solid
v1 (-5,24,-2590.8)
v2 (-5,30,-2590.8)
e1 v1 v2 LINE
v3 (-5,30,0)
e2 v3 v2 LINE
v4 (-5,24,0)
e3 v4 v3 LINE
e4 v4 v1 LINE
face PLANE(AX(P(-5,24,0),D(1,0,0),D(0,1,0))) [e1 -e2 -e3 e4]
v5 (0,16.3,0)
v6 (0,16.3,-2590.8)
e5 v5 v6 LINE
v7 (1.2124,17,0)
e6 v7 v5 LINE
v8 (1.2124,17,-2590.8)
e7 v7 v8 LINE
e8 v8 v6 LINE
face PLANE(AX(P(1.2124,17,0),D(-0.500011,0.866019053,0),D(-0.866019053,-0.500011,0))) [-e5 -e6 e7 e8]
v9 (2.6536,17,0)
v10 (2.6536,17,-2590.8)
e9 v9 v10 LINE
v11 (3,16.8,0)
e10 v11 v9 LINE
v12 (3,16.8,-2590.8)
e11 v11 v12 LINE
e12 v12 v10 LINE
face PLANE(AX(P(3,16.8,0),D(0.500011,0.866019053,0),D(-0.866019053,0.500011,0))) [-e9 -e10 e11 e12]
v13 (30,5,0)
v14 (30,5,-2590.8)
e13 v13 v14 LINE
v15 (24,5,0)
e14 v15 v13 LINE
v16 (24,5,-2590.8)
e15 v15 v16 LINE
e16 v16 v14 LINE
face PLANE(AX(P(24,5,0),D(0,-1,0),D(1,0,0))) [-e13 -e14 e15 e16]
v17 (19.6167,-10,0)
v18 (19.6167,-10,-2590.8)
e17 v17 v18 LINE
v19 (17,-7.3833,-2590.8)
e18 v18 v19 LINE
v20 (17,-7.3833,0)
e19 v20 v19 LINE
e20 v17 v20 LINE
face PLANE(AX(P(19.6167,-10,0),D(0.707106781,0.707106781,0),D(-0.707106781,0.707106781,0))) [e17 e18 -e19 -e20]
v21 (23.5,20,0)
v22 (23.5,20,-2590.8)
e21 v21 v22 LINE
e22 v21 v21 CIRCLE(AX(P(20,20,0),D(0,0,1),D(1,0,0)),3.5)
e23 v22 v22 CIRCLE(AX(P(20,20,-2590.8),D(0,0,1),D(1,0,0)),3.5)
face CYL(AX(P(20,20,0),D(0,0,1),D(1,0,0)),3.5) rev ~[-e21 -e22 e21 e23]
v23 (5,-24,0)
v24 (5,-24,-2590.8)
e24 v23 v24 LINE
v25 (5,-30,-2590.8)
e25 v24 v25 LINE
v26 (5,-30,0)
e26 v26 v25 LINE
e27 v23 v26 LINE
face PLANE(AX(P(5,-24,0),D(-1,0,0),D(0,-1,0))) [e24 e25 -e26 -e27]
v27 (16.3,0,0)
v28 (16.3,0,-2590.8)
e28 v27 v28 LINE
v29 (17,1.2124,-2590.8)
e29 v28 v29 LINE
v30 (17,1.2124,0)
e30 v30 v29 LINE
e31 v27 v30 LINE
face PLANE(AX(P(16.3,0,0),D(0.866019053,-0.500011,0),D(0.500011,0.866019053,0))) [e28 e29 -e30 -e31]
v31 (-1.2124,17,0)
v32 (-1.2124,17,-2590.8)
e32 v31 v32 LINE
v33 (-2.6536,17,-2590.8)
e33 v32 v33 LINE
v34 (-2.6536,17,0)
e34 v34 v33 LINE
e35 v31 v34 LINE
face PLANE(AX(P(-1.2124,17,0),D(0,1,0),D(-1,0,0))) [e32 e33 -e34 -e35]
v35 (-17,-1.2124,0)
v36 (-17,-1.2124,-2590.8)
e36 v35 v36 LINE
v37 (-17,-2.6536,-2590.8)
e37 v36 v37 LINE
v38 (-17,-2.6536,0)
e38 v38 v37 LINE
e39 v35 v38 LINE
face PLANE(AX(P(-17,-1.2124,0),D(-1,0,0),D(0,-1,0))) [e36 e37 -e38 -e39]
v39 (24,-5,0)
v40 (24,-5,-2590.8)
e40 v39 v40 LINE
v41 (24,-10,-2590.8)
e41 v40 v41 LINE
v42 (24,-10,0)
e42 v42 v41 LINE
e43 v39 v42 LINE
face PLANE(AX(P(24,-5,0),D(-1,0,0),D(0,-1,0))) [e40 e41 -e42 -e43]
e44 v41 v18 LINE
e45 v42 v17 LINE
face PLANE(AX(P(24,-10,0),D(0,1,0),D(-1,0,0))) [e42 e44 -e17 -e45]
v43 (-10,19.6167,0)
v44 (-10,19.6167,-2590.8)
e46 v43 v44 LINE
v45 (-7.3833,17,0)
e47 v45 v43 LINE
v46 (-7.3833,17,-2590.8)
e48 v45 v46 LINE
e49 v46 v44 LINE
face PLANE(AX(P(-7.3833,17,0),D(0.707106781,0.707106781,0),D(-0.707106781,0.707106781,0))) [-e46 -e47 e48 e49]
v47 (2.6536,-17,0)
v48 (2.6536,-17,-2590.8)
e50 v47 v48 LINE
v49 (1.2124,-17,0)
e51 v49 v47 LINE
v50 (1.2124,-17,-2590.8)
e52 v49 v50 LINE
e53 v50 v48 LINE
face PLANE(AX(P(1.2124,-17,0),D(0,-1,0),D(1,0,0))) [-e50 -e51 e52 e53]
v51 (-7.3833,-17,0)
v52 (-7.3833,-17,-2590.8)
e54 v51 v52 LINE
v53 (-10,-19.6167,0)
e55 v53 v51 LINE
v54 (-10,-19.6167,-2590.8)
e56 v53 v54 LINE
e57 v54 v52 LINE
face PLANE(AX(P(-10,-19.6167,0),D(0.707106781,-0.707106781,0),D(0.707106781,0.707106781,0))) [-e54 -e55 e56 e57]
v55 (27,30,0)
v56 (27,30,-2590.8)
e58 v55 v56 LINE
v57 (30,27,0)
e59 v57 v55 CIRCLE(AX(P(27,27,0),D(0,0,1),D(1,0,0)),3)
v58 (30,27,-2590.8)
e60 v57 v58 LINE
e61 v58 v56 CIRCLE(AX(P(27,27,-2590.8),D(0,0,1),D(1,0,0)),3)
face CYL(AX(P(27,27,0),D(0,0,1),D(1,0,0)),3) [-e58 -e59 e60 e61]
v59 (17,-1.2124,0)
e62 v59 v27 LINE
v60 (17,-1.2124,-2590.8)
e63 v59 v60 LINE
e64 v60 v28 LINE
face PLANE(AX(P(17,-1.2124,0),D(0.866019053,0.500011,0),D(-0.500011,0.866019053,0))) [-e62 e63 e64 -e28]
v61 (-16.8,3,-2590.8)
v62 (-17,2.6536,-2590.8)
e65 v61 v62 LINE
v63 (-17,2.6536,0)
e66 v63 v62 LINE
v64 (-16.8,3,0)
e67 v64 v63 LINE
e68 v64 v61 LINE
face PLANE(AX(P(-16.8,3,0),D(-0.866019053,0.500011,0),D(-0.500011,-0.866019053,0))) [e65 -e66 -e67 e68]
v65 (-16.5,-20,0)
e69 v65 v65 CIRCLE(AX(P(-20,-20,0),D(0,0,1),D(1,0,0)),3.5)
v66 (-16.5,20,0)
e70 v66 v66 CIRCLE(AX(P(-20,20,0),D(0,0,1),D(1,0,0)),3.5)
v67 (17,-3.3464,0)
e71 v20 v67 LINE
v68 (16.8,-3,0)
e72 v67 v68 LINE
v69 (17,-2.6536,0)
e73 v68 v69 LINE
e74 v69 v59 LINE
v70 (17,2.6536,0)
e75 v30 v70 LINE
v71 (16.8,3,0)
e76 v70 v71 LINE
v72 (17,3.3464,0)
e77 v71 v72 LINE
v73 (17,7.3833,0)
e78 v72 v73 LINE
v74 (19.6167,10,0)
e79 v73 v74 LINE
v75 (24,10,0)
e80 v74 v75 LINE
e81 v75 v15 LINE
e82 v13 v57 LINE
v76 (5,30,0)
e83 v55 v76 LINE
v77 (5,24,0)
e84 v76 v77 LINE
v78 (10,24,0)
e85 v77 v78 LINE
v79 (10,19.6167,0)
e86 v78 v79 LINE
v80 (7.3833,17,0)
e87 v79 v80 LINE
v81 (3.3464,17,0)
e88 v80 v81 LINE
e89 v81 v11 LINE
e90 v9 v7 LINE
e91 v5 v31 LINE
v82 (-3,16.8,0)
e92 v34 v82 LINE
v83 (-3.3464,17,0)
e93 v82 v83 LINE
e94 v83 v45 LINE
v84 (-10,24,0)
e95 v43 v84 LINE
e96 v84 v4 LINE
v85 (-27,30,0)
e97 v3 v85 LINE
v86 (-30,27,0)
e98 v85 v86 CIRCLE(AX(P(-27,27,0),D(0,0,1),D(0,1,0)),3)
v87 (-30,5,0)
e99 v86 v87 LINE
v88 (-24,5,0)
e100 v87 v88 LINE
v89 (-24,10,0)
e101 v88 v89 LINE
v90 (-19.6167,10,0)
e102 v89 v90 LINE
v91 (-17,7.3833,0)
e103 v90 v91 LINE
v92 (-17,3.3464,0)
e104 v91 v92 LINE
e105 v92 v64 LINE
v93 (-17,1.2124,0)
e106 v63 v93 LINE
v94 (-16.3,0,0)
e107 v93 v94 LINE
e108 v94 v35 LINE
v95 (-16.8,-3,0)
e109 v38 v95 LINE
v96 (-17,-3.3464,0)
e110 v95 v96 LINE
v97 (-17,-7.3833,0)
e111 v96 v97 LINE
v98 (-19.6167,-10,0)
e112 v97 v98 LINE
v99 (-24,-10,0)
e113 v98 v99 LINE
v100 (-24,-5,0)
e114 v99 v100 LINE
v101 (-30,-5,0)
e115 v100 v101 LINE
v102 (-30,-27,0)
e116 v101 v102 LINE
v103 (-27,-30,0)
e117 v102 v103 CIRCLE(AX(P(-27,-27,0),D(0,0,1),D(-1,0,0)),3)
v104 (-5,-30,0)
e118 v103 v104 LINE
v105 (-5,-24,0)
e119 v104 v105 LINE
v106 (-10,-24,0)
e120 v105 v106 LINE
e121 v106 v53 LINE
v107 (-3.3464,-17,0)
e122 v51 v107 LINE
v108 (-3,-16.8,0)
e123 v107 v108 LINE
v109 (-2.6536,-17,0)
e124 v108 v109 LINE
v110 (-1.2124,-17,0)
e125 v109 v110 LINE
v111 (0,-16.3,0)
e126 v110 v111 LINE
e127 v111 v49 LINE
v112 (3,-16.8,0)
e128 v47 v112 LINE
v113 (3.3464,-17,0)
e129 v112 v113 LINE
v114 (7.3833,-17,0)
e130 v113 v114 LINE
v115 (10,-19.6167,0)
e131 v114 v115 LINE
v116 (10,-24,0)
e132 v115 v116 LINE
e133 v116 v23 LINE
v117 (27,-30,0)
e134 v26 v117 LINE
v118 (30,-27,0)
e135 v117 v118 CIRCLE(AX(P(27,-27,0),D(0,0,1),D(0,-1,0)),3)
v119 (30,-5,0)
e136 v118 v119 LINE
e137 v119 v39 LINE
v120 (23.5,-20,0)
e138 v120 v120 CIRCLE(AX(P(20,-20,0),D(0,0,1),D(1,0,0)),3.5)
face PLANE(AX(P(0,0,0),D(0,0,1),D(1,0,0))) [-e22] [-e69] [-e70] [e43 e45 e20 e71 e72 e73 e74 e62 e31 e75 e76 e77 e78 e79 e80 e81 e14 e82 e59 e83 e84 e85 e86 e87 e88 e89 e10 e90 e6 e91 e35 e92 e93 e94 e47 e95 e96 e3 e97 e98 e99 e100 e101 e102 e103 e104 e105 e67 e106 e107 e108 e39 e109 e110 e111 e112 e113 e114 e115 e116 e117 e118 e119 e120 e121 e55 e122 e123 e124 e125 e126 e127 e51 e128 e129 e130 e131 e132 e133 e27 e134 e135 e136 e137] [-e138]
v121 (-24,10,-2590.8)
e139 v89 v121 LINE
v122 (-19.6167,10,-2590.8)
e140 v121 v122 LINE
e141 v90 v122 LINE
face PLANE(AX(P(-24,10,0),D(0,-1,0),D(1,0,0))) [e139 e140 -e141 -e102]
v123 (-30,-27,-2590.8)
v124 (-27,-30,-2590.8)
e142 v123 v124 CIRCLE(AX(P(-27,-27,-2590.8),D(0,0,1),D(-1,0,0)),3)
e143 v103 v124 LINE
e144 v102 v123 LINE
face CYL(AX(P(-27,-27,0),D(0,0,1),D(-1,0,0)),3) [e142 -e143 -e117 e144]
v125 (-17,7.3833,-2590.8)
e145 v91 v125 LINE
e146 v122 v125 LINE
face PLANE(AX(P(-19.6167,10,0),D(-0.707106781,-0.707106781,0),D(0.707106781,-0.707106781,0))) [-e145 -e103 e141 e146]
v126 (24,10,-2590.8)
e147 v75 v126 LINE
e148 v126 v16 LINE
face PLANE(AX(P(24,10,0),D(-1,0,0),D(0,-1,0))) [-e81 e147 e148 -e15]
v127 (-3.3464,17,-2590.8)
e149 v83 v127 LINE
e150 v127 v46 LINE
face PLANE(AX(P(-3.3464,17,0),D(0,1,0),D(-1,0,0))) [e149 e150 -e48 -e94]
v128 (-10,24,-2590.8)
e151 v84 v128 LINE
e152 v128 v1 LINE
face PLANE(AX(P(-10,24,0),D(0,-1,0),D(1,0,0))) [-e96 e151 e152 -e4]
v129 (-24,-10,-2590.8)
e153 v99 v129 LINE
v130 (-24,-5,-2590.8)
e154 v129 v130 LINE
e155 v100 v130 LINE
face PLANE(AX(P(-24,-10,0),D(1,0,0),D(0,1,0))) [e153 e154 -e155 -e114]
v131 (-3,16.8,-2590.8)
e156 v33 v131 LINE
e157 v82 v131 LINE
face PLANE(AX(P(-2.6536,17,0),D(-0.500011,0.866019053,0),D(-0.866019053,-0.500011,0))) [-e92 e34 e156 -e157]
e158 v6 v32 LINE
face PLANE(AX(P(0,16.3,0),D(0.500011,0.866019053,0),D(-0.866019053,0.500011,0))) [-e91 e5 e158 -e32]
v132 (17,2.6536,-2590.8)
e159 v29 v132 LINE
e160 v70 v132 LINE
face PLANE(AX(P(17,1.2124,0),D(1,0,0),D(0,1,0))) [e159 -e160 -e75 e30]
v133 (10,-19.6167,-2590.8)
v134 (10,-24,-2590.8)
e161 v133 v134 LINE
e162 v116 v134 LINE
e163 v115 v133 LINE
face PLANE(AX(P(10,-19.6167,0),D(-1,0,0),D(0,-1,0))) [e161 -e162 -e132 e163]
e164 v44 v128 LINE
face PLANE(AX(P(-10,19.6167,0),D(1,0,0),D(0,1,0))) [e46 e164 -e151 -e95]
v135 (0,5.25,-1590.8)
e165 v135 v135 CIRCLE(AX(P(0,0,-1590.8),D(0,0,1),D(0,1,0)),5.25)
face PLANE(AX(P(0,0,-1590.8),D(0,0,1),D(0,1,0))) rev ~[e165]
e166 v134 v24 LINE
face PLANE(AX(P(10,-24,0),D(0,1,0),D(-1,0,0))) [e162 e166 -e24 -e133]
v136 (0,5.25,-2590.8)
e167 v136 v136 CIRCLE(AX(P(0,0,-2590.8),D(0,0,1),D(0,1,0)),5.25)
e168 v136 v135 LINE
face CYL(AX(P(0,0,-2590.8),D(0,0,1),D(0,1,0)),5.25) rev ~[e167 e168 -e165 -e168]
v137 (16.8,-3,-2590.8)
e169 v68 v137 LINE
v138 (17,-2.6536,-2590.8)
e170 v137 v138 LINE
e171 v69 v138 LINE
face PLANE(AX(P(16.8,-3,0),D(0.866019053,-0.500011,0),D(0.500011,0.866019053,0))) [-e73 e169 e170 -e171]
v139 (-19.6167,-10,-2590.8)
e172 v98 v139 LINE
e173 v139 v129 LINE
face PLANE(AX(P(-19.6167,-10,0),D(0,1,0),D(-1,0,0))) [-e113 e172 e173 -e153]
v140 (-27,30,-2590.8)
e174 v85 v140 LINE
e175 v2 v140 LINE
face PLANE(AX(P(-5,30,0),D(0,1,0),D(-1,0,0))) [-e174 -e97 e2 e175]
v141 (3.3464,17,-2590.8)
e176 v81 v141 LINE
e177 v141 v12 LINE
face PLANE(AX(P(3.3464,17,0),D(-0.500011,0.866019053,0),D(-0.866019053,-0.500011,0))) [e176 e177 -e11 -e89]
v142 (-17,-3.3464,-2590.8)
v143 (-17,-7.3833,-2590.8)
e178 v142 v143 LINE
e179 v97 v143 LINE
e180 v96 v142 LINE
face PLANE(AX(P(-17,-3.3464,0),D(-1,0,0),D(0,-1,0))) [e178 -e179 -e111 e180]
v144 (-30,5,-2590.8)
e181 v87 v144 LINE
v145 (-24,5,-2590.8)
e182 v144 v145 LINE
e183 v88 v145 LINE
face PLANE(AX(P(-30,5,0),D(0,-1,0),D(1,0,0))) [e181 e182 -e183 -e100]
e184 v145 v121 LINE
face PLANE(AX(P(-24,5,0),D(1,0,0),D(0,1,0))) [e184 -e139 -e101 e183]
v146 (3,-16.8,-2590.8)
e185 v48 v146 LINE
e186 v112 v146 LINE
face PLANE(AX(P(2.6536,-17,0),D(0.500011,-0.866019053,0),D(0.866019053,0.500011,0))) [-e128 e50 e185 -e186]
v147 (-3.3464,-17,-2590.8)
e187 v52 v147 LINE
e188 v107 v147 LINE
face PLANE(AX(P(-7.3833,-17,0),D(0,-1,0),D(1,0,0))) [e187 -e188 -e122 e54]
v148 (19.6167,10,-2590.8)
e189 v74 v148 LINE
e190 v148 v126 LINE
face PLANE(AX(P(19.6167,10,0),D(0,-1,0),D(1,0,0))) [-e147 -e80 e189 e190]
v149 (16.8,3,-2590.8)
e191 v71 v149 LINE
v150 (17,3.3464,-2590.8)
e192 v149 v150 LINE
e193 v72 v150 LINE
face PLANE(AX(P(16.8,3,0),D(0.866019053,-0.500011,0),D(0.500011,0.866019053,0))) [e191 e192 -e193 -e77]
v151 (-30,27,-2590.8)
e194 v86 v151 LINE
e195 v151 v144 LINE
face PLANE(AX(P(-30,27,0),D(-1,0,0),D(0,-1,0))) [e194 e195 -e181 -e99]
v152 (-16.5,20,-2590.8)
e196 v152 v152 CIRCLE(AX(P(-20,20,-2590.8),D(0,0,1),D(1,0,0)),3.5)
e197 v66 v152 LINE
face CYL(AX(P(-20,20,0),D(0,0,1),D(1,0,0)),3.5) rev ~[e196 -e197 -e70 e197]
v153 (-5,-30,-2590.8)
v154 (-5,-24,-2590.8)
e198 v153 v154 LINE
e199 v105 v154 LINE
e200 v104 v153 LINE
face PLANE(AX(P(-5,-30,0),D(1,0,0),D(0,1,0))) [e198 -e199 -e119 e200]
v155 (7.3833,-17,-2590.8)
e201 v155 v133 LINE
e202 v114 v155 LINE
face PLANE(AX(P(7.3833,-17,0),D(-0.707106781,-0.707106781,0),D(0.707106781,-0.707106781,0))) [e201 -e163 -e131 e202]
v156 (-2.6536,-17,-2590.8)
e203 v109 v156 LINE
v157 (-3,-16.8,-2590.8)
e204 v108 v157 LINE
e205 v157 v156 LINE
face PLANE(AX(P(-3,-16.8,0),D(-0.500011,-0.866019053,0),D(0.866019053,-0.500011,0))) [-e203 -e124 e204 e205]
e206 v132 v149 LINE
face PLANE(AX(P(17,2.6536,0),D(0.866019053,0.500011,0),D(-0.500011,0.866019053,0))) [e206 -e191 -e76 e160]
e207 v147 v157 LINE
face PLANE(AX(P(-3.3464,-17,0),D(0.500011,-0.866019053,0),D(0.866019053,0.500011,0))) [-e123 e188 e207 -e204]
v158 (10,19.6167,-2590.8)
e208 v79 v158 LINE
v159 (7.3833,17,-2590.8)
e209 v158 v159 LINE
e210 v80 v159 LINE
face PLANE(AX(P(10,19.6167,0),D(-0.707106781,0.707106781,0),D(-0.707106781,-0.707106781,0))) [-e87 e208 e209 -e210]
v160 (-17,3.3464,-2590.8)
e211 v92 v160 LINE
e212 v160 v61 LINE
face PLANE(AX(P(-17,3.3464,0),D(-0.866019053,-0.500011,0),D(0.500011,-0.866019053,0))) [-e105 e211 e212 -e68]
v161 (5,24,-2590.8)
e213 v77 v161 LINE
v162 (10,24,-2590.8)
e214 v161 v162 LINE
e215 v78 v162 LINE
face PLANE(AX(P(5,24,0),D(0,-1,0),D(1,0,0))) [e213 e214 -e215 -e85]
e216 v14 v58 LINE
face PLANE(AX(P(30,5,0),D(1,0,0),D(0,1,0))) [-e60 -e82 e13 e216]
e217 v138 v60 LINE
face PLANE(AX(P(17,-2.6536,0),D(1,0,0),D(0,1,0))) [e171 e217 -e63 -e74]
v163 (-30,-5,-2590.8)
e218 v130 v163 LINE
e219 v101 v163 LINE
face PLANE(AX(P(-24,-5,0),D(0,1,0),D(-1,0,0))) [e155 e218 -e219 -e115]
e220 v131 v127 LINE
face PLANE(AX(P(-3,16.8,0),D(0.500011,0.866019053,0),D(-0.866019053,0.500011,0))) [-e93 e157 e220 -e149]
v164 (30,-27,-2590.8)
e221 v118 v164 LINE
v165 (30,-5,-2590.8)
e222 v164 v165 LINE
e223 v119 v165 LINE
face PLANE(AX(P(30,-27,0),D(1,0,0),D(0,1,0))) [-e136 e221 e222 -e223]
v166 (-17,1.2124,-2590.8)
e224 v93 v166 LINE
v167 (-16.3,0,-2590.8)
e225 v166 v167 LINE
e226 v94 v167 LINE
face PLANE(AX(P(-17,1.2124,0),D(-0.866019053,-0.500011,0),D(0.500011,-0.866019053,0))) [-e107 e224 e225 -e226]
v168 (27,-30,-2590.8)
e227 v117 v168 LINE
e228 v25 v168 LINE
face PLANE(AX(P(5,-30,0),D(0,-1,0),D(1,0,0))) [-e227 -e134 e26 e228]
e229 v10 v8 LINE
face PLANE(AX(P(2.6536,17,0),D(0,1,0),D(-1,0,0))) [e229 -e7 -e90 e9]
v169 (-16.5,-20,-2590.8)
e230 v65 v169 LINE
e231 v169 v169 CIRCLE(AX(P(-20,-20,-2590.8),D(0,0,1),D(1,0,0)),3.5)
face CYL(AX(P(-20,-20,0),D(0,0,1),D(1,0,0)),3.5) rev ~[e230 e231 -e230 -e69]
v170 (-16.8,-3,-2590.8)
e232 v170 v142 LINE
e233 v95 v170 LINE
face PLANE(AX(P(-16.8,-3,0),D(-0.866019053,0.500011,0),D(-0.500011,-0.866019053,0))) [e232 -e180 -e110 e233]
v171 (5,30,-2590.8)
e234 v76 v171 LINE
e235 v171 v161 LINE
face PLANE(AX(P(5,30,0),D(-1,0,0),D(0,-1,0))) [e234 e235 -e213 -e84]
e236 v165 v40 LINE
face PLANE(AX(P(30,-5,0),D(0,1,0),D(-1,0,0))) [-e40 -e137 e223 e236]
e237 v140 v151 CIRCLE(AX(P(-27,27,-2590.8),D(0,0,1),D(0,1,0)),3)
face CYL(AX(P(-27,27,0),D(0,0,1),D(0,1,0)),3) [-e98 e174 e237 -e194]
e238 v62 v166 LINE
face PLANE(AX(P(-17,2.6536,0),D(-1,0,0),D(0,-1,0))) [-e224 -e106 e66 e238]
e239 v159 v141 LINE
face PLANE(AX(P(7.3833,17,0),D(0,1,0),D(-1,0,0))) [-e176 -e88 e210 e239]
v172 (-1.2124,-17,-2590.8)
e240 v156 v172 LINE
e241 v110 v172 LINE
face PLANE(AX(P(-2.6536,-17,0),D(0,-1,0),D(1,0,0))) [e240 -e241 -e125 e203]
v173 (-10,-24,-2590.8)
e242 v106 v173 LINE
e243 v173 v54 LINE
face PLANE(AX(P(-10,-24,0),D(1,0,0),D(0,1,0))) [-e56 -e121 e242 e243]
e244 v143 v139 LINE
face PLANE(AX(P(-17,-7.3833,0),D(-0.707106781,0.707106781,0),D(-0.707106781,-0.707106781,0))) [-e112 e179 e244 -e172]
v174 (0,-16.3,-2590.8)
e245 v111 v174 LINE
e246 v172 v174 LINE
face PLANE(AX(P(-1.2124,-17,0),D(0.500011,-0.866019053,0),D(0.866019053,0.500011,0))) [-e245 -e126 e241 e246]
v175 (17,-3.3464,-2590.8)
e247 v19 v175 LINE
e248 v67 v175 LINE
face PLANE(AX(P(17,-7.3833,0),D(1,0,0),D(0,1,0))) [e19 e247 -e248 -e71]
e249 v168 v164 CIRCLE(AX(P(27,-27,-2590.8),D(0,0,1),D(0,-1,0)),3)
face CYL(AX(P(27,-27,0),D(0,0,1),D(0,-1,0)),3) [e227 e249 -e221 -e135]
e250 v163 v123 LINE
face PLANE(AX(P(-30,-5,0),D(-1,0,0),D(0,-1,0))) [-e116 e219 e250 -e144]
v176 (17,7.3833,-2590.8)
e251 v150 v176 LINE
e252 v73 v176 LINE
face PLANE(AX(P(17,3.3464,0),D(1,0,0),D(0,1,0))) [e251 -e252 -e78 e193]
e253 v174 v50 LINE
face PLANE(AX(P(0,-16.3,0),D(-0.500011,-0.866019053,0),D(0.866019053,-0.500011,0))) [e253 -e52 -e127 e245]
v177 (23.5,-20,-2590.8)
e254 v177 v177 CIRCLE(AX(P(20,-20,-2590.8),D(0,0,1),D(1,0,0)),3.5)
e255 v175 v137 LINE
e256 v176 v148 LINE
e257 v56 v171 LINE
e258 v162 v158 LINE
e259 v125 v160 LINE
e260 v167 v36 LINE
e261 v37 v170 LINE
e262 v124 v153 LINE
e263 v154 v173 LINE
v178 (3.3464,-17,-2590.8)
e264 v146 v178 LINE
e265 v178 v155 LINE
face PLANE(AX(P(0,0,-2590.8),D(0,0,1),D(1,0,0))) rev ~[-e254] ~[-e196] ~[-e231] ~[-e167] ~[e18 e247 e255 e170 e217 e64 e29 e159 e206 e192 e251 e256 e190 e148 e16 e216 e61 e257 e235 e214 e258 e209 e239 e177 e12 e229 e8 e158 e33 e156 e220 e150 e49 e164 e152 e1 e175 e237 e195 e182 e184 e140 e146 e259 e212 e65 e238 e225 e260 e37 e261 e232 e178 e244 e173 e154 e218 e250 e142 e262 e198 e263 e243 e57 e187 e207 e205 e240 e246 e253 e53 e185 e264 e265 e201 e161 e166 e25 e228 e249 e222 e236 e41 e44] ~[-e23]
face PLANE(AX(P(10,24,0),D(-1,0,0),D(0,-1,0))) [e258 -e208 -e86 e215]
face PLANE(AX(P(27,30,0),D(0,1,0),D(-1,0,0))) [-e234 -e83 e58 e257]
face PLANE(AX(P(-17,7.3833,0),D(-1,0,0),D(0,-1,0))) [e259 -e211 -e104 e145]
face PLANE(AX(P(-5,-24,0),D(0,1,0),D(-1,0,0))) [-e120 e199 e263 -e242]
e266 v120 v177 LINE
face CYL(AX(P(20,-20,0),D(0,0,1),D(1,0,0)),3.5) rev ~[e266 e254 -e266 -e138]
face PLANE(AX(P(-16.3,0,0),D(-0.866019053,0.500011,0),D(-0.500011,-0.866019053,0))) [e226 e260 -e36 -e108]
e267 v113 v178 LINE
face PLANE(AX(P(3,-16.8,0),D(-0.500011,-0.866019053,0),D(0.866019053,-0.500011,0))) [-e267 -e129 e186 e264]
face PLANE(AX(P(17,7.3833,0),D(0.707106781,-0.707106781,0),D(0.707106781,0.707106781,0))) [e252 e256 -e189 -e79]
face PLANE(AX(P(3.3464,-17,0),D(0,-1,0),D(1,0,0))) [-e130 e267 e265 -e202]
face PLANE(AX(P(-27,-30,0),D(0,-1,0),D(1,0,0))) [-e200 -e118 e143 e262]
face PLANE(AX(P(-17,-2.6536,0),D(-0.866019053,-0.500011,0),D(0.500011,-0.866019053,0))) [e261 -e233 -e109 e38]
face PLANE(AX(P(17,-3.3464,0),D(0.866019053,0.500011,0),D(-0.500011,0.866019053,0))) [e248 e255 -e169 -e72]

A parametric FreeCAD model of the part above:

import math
import FreeCAD as App
import Part
import Sketcher
from FreeCAD import Vector
Q = App.Units.Quantity

doc = App.newDocument("Part")
body = doc.addObject("PartDesign::Body", "Body")

# Sketch on XY plane
sketch1 = body.newObject("Sketcher::SketchObject", "Sketch")
sketch1.AttachmentSupport = (doc.getObject("XY_Plane"), [""])
sketch1.MapMode = "FlatFace"
sketch1.addGeometry(Part.LineSegment(Vector(-30, -5, 0), Vector(-30, -27, 0)), False)
sketch1.addGeometry(Part.ArcOfCircle(Part.Circle(Vector(-27, -27, 0), Vector(0, 0, 1), 3), math.radians(180), math.radians(270)), False)
sketch1.addGeometry(Part.LineSegment(Vector(-27, -30, 0), Vector(-5, -30, 0)), False)
sketch1.addGeometry(Part.LineSegment(Vector(-5, -30, 0), Vector(-5, -24, 0)), False)
sketch1.addGeometry(Part.LineSegment(Vector(-5, -24, 0), Vector(-10, -24, 0)), False)
sketch1.addGeometry(Part.LineSegment(Vector(-10, -24, 0), Vector(-10, -19.6167, 0)), False)
sketch1.addGeometry(Part.LineSegment(Vector(-10, -19.6167, 0), Vector(-7.3833, -17, 0)), False)
sketch1.addGeometry(Part.LineSegment(Vector(-7.3833, -17, 0), Vector(-3.3464, -17, 0)), False)
sketch1.addGeometry(Part.LineSegment(Vector(-3.3464, -17, 0), Vector(-3, -16.8, 0)), False)
sketch1.addGeometry(Part.LineSegment(Vector(-3, -16.8, 0), Vector(-2.6536, -17, 0)), False)
sketch1.addGeometry(Part.LineSegment(Vector(-2.6536, -17, 0), Vector(-1.2124, -17, 0)), False)
sketch1.addGeometry(Part.LineSegment(Vector(-1.2124, -17, 0), Vector(0, -16.3, 0)), False)
sketch1.addGeometry(Part.LineSegment(Vector(0, -16.3, 0), Vector(1.2124, -17, 0)), False)
sketch1.addGeometry(Part.LineSegment(Vector(1.2124, -17, 0), Vector(2.6536, -17, 0)), False)
sketch1.addGeometry(Part.LineSegment(Vector(2.6536, -17, 0), Vector(3, -16.8, 0)), False)
sketch1.addGeometry(Part.LineSegment(Vector(3, -16.8, 0), Vector(3.3464, -17, 0)), False)
sketch1.addGeometry(Part.LineSegment(Vector(3.3464, -17, 0), Vector(7.3833, -17, 0)), False)
sketch1.addGeometry(Part.LineSegment(Vector(7.3833, -17, 0), Vector(10, -19.6167, 0)), False)
sketch1.addGeometry(Part.LineSegment(Vector(10, -19.6167, 0), Vector(10, -24, 0)), False)
sketch1.addGeometry(Part.LineSegment(Vector(10, -24, 0), Vector(5, -24, 0)), False)
sketch1.addGeometry(Part.LineSegment(Vector(5, -24, 0), Vector(5, -30, 0)), False)
sketch1.addGeometry(Part.LineSegment(Vector(5, -30, 0), Vector(27, -30, 0)), False)
sketch1.addGeometry(Part.ArcOfCircle(Part.Circle(Vector(27, -27, 0), Vector(0, 0, 1), 3), math.radians(-90), math.radians(0)), False)
sketch1.addGeometry(Part.LineSegment(Vector(30, -27, 0), Vector(30, -5, 0)), False)
sketch1.addGeometry(Part.LineSegment(Vector(30, -5, 0), Vector(24, -5, 0)), False)
sketch1.addGeometry(Part.LineSegment(Vector(24, -5, 0), Vector(24, -10, 0)), False)
sketch1.addGeometry(Part.LineSegment(Vector(24, -10, 0), Vector(19.6167, -10, 0)), False)
sketch1.addGeometry(Part.LineSegment(Vector(19.6167, -10, 0), Vector(17, -7.3833, 0)), False)
sketch1.addGeometry(Part.LineSegment(Vector(17, -7.3833, 0), Vector(17, -3.3464, 0)), False)
sketch1.addGeometry(Part.LineSegment(Vector(17, -3.3464, 0), Vector(16.8, -3, 0)), False)
sketch1.addGeometry(Part.LineSegment(Vector(16.8, -3, 0), Vector(17, -2.6536, 0)), False)
sketch1.addGeometry(Part.LineSegment(Vector(17, -2.6536, 0), Vector(17, -1.2124, 0)), False)
sketch1.addGeometry(Part.LineSegment(Vector(17, -1.2124, 0), Vector(16.3, 0, 0)), False)
sketch1.addGeometry(Part.LineSegment(Vector(16.3, 0, 0), Vector(17, 1.2124, 0)), False)
sketch1.addGeometry(Part.LineSegment(Vector(17, 1.2124, 0), Vector(17, 2.6536, 0)), False)
sketch1.addGeometry(Part.LineSegment(Vector(17, 2.6536, 0), Vector(16.8, 3, 0)), False)
sketch1.addGeometry(Part.LineSegment(Vector(16.8, 3, 0), Vector(17, 3.3464, 0)), False)
sketch1.addGeometry(Part.LineSegment(Vector(17, 3.3464, 0), Vector(17, 7.3833, 0)), False)
sketch1.addGeometry(Part.LineSegment(Vector(17, 7.3833, 0), Vector(19.6167, 10, 0)), False)
sketch1.addGeometry(Part.LineSegment(Vector(19.6167, 10, 0), Vector(24, 10, 0)), False)
sketch1.addGeometry(Part.LineSegment(Vector(24, 10, 0), Vector(24, 5, 0)), False)
sketch1.addGeometry(Part.LineSegment(Vector(24, 5, 0), Vector(30, 5, 0)), False)
sketch1.addGeometry(Part.LineSegment(Vector(30, 5, 0), Vector(30, 27, 0)), False)
sketch1.addGeometry(Part.ArcOfCircle(Part.Circle(Vector(27, 27, 0), Vector(0, 0, 1), 3), math.radians(0), math.radians(90)), False)
sketch1.addGeometry(Part.LineSegment(Vector(27, 30, 0), Vector(5, 30, 0)), False)
sketch1.addGeometry(Part.LineSegment(Vector(5, 30, 0), Vector(5, 24, 0)), False)
sketch1.addGeometry(Part.LineSegment(Vector(5, 24, 0), Vector(10, 24, 0)), False)
sketch1.addGeometry(Part.LineSegment(Vector(10, 24, 0), Vector(10, 19.6167, 0)), False)
sketch1.addGeometry(Part.LineSegment(Vector(10, 19.6167, 0), Vector(7.3833, 17, 0)), False)
sketch1.addGeometry(Part.LineSegment(Vector(7.3833, 17, 0), Vector(3.3464, 17, 0)), False)
sketch1.addGeometry(Part.LineSegment(Vector(3.3464, 17, 0), Vector(3, 16.8, 0)), False)
sketch1.addGeometry(Part.LineSegment(Vector(3, 16.8, 0), Vector(2.6536, 17, 0)), False)
sketch1.addGeometry(Part.LineSegment(Vector(2.6536, 17, 0), Vector(1.2124, 17, 0)), False)
sketch1.addGeometry(Part.LineSegment(Vector(1.2124, 17, 0), Vector(0, 16.3, 0)), False)
sketch1.addGeometry(Part.LineSegment(Vector(0, 16.3, 0), Vector(-1.2124, 17, 0)), False)
sketch1.addGeometry(Part.LineSegment(Vector(-1.2124, 17, 0), Vector(-2.6536, 17, 0)), False)
sketch1.addGeometry(Part.LineSegment(Vector(-2.6536, 17, 0), Vector(-3, 16.8, 0)), False)
sketch1.addGeometry(Part.LineSegment(Vector(-3, 16.8, 0), Vector(-3.3464, 17, 0)), False)
sketch1.addGeometry(Part.LineSegment(Vector(-3.3464, 17, 0), Vector(-7.3833, 17, 0)), False)
sketch1.addGeometry(Part.LineSegment(Vector(-7.3833, 17, 0), Vector(-10, 19.6167, 0)), False)
sketch1.addGeometry(Part.LineSegment(Vector(-10, 19.6167, 0), Vector(-10, 24, 0)), False)
sketch1.addGeometry(Part.LineSegment(Vector(-10, 24, 0), Vector(-5, 24, 0)), False)
sketch1.addGeometry(Part.LineSegment(Vector(-5, 24, 0), Vector(-5, 30, 0)), False)
sketch1.addGeometry(Part.LineSegment(Vector(-5, 30, 0), Vector(-27, 30, 0)), False)
sketch1.addGeometry(Part.ArcOfCircle(Part.Circle(Vector(-27, 27, 0), Vector(0, 0, 1), 3), math.radians(90), math.radians(180)), False)
sketch1.addGeometry(Part.LineSegment(Vector(-30, 27, 0), Vector(-30, 5, 0)), False)
sketch1.addGeometry(Part.LineSegment(Vector(-30, 5, 0), Vector(-24, 5, 0)), False)
sketch1.addGeometry(Part.LineSegment(Vector(-24, 5, 0), Vector(-24, 10, 0)), False)
sketch1.addGeometry(Part.LineSegment(Vector(-24, 10, 0), Vector(-19.6167, 10, 0)), False)
sketch1.addGeometry(Part.LineSegment(Vector(-19.6167, 10, 0), Vector(-17, 7.3833, 0)), False)
sketch1.addGeometry(Part.LineSegment(Vector(-17, 7.3833, 0), Vector(-17, 3.3464, 0)), False)
sketch1.addGeometry(Part.LineSegment(Vector(-17, 3.3464, 0), Vector(-16.8, 3, 0)), False)
sketch1.addGeometry(Part.LineSegment(Vector(-16.8, 3, 0), Vector(-17, 2.6536, 0)), False)
sketch1.addGeometry(Part.LineSegment(Vector(-17, 2.6536, 0), Vector(-17, 1.2124, 0)), False)
sketch1.addGeometry(Part.LineSegment(Vector(-17, 1.2124, 0), Vector(-16.3, 0, 0)), False)
sketch1.addGeometry(Part.LineSegment(Vector(-16.3, 0, 0), Vector(-17, -1.2124, 0)), False)
sketch1.addGeometry(Part.LineSegment(Vector(-17, -1.2124, 0), Vector(-17, -2.6536, 0)), False)
sketch1.addGeometry(Part.LineSegment(Vector(-17, -2.6536, 0), Vector(-16.8, -3, 0)), False)
sketch1.addGeometry(Part.LineSegment(Vector(-16.8, -3, 0), Vector(-17, -3.3464, 0)), False)
sketch1.addGeometry(Part.LineSegment(Vector(-17, -3.3464, 0), Vector(-17, -7.3833, 0)), False)
sketch1.addGeometry(Part.LineSegment(Vector(-17, -7.3833, 0), Vector(-19.6167, -10, 0)), False)
sketch1.addGeometry(Part.LineSegment(Vector(-19.6167, -10, 0), Vector(-24, -10, 0)), False)
sketch1.addGeometry(Part.LineSegment(Vector(-24, -10, 0), Vector(-24, -5, 0)), False)
sketch1.addGeometry(Part.LineSegment(Vector(-24, -5, 0), Vector(-30, -5, 0)), False)
sketch1.addGeometry(Part.Circle(Vector(-20, -20, 0), Vector(0, 0, 1), 3.5), False)
sketch1.addGeometry(Part.Circle(Vector(20, -20, 0), Vector(0, 0, 1), 3.5), False)
sketch1.addGeometry(Part.Circle(Vector(-20, 20, 0), Vector(0, 0, 1), 3.5), False)
sketch1.addGeometry(Part.Circle(Vector(20, 20, 0), Vector(0, 0, 1), 3.5), False)
sketch1.addConstraint(Sketcher.Constraint("Tangent", 0, 2, 1, 1))
sketch1.addConstraint(Sketcher.Constraint("Tangent", 1, 2, 2, 1))
sketch1.addConstraint(Sketcher.Constraint("Coincident", 2, 2, 3, 1))
sketch1.addConstraint(Sketcher.Constraint("Coincident", 3, 2, 4, 1))
sketch1.addConstraint(Sketcher.Constraint("Coincident", 4, 2, 5, 1))
sketch1.addConstraint(Sketcher.Constraint("Coincident", 5, 2, 6, 1))
sketch1.addConstraint(Sketcher.Constraint("Coincident", 6, 2, 7, 1))
sketch1.addConstraint(Sketcher.Constraint("Coincident", 7, 2, 8, 1))
sketch1.addConstraint(Sketcher.Constraint("Coincident", 8, 2, 9, 1))
sketch1.addConstraint(Sketcher.Constraint("Coincident", 9, 2, 10, 1))
sketch1.addConstraint(Sketcher.Constraint("Coincident", 10, 2, 11, 1))
sketch1.addConstraint(Sketcher.Constraint("Coincident", 11, 2, 12, 1))
sketch1.addConstraint(Sketcher.Constraint("Coincident", 12, 2, 13, 1))
sketch1.addConstraint(Sketcher.Constraint("Coincident", 13, 2, 14, 1))
sketch1.addConstraint(Sketcher.Constraint("Coincident", 14, 2, 15, 1))
sketch1.addConstraint(Sketcher.Constraint("Coincident", 15, 2, 16, 1))
sketch1.addConstraint(Sketcher.Constraint("Coincident", 16, 2, 17, 1))
sketch1.addConstraint(Sketcher.Constraint("Coincident", 17, 2, 18, 1))
sketch1.addConstraint(Sketcher.Constraint("Coincident", 18, 2, 19, 1))
sketch1.addConstraint(Sketcher.Constraint("Coincident", 19, 2, 20, 1))
sketch1.addConstraint(Sketcher.Constraint("Coincident", 20, 2, 21, 1))
sketch1.addConstraint(Sketcher.Constraint("Tangent", 21, 2, 22, 1))
sketch1.addConstraint(Sketcher.Constraint("Tangent", 22, 2, 23, 1))
sketch1.addConstraint(Sketcher.Constraint("Coincident", 23, 2, 24, 1))
sketch1.addConstraint(Sketcher.Constraint("Coincident", 24, 2, 25, 1))
sketch1.addConstraint(Sketcher.Constraint("Coincident", 25, 2, 26, 1))
sketch1.addConstraint(Sketcher.Constraint("Coincident", 26, 2, 27, 1))
sketch1.addConstraint(Sketcher.Constraint("Coincident", 27, 2, 28, 1))
sketch1.addConstraint(Sketcher.Constraint("Coincident", 28, 2, 29, 1))
sketch1.addConstraint(Sketcher.Constraint("Coincident", 29, 2, 30, 1))
sketch1.addConstraint(Sketcher.Constraint("Coincident", 30, 2, 31, 1))
sketch1.addConstraint(Sketcher.Constraint("Coincident", 31, 2, 32, 1))
sketch1.addConstraint(Sketcher.Constraint("Coincident", 32, 2, 33, 1))
sketch1.addConstraint(Sketcher.Constraint("Coincident", 33, 2, 34, 1))
sketch1.addConstraint(Sketcher.Constraint("Coincident", 34, 2, 35, 1))
sketch1.addConstraint(Sketcher.Constraint("Coincident", 35, 2, 36, 1))
sketch1.addConstraint(Sketcher.Constraint("Coincident", 36, 2, 37, 1))
sketch1.addConstraint(Sketcher.Constraint("Coincident", 37, 2, 38, 1))
sketch1.addConstraint(Sketcher.Constraint("Coincident", 38, 2, 39, 1))
sketch1.addConstraint(Sketcher.Constraint("Coincident", 39, 2, 40, 1))
sketch1.addConstraint(Sketcher.Constraint("Coincident", 40, 2, 41, 1))
sketch1.addConstraint(Sketcher.Constraint("Coincident", 41, 2, 42, 1))
sketch1.addConstraint(Sketcher.Constraint("Tangent", 42, 2, 43, 1))
sketch1.addConstraint(Sketcher.Constraint("Tangent", 43, 2, 44, 1))
sketch1.addConstraint(Sketcher.Constraint("Coincident", 44, 2, 45, 1))
sketch1.addConstraint(Sketcher.Constraint("Coincident", 45, 2, 46, 1))
sketch1.addConstraint(Sketcher.Constraint("Coincident", 46, 2, 47, 1))
sketch1.addConstraint(Sketcher.Constraint("Coincident", 47, 2, 48, 1))
sketch1.addConstraint(Sketcher.Constraint("Coincident", 48, 2, 49, 1))
sketch1.addConstraint(Sketcher.Constraint("Coincident", 49, 2, 50, 1))
sketch1.addConstraint(Sketcher.Constraint("Coincident", 50, 2, 51, 1))
sketch1.addConstraint(Sketcher.Constraint("Coincident", 51, 2, 52, 1))
sketch1.addConstraint(Sketcher.Constraint("Coincident", 52, 2, 53, 1))
sketch1.addConstraint(Sketcher.Constraint("Coincident", 53, 2, 54, 1))
sketch1.addConstraint(Sketcher.Constraint("Coincident", 54, 2, 55, 1))
sketch1.addConstraint(Sketcher.Constraint("Coincident", 55, 2, 56, 1))
sketch1.addConstraint(Sketcher.Constraint("Coincident", 56, 2, 57, 1))
sketch1.addConstraint(Sketcher.Constraint("Coincident", 57, 2, 58, 1))
sketch1.addConstraint(Sketcher.Constraint("Coincident", 58, 2, 59, 1))
sketch1.addConstraint(Sketcher.Constraint("Coincident", 59, 2, 60, 1))
sketch1.addConstraint(Sketcher.Constraint("Coincident", 60, 2, 61, 1))
sketch1.addConstraint(Sketcher.Constraint("Coincident", 61, 2, 62, 1))
sketch1.addConstraint(Sketcher.Constraint("Coincident", 62, 2, 63, 1))
sketch1.addConstraint(Sketcher.Constraint("Tangent", 63, 2, 64, 1))
sketch1.addConstraint(Sketcher.Constraint("Tangent", 64, 2, 65, 1))
sketch1.addConstraint(Sketcher.Constraint("Coincident", 65, 2, 66, 1))
sketch1.addConstraint(Sketcher.Constraint("Coincident", 66, 2, 67, 1))
sketch1.addConstraint(Sketcher.Constraint("Coincident", 67, 2, 68, 1))
sketch1.addConstraint(Sketcher.Constraint("Coincident", 68, 2, 69, 1))
sketch1.addConstraint(Sketcher.Constraint("Coincident", 69, 2, 70, 1))
sketch1.addConstraint(Sketcher.Constraint("Coincident", 70, 2, 71, 1))
sketch1.addConstraint(Sketcher.Constraint("Coincident", 71, 2, 72, 1))
sketch1.addConstraint(Sketcher.Constraint("Coincident", 72, 2, 73, 1))
sketch1.addConstraint(Sketcher.Constraint("Coincident", 73, 2, 74, 1))
sketch1.addConstraint(Sketcher.Constraint("Coincident", 74, 2, 75, 1))
sketch1.addConstraint(Sketcher.Constraint("Coincident", 75, 2, 76, 1))
sketch1.addConstraint(Sketcher.Constraint("Coincident", 76, 2, 77, 1))
sketch1.addConstraint(Sketcher.Constraint("Coincident", 77, 2, 78, 1))
sketch1.addConstraint(Sketcher.Constraint("Coincident", 78, 2, 79, 1))
sketch1.addConstraint(Sketcher.Constraint("Coincident", 79, 2, 80, 1))
sketch1.addConstraint(Sketcher.Constraint("Coincident", 80, 2, 81, 1))
sketch1.addConstraint(Sketcher.Constraint("Coincident", 81, 2, 82, 1))
sketch1.addConstraint(Sketcher.Constraint("Coincident", 82, 2, 83, 1))
sketch1.addConstraint(Sketcher.Constraint("Coincident", 83, 2, 0, 1))
sketch1.addConstraint(Sketcher.Constraint("Vertical", 0))
sketch1.addConstraint(Sketcher.Constraint("Horizontal", 2))
sketch1.addConstraint(Sketcher.Constraint("Vertical", 3))
sketch1.addConstraint(Sketcher.Constraint("Horizontal", 4))
sketch1.addConstraint(Sketcher.Constraint("Vertical", 5))
sketch1.addConstraint(Sketcher.Constraint("Horizontal", 7))
sketch1.addConstraint(Sketcher.Constraint("Horizontal", 10))
sketch1.addConstraint(Sketcher.Constraint("Horizontal", 13))
sketch1.addConstraint(Sketcher.Constraint("Horizontal", 16))
sketch1.addConstraint(Sketcher.Constraint("Vertical", 18))
sketch1.addConstraint(Sketcher.Constraint("Horizontal", 19))
sketch1.addConstraint(Sketcher.Constraint("Vertical", 20))
sketch1.addConstraint(Sketcher.Constraint("Horizontal", 21))
sketch1.addConstraint(Sketcher.Constraint("Vertical", 23))
sketch1.addConstraint(Sketcher.Constraint("Horizontal", 24))
sketch1.addConstraint(Sketcher.Constraint("Vertical", 25))
sketch1.addConstraint(Sketcher.Constraint("Horizontal", 26))
sketch1.addConstraint(Sketcher.Constraint("Vertical", 28))
sketch1.addConstraint(Sketcher.Constraint("Vertical", 31))
sketch1.addConstraint(Sketcher.Constraint("Vertical", 34))
sketch1.addConstraint(Sketcher.Constraint("Vertical", 37))
sketch1.addConstraint(Sketcher.Constraint("Horizontal", 39))
sketch1.addConstraint(Sketcher.Constraint("Vertical", 40))
sketch1.addConstraint(Sketcher.Constraint("Horizontal", 41))
sketch1.addConstraint(Sketcher.Constraint("Vertical", 42))
sketch1.addConstraint(Sketcher.Constraint("Horizontal", 44))
sketch1.addConstraint(Sketcher.Constraint("Vertical", 45))
sketch1.addConstraint(Sketcher.Constraint("Horizontal", 46))
sketch1.addConstraint(Sketcher.Constraint("Vertical", 47))
sketch1.addConstraint(Sketcher.Constraint("Horizontal", 49))
sketch1.addConstraint(Sketcher.Constraint("Horizontal", 52))
sketch1.addConstraint(Sketcher.Constraint("Horizontal", 55))
sketch1.addConstraint(Sketcher.Constraint("Horizontal", 58))
sketch1.addConstraint(Sketcher.Constraint("Vertical", 60))
sketch1.addConstraint(Sketcher.Constraint("Horizontal", 61))
sketch1.addConstraint(Sketcher.Constraint("Vertical", 62))
sketch1.addConstraint(Sketcher.Constraint("Horizontal", 63))
sketch1.addConstraint(Sketcher.Constraint("Vertical", 65))
sketch1.addConstraint(Sketcher.Constraint("Horizontal", 66))
sketch1.addConstraint(Sketcher.Constraint("Vertical", 67))
sketch1.addConstraint(Sketcher.Constraint("Horizontal", 68))
sketch1.addConstraint(Sketcher.Constraint("Vertical", 70))
sketch1.addConstraint(Sketcher.Constraint("Vertical", 73))
sketch1.addConstraint(Sketcher.Constraint("Vertical", 76))
sketch1.addConstraint(Sketcher.Constraint("Vertical", 79))
sketch1.addConstraint(Sketcher.Constraint("Horizontal", 81))
sketch1.addConstraint(Sketcher.Constraint("Vertical", 82))
sketch1.addConstraint(Sketcher.Constraint("Horizontal", 83))
sketch1.addConstraint(Sketcher.Constraint("Equal", 1, 22))
sketch1.addConstraint(Sketcher.Constraint("Equal", 22, 43))
sketch1.addConstraint(Sketcher.Constraint("Equal", 43, 64))
sketch1.addConstraint(Sketcher.Constraint("Equal", 84, 85))
sketch1.addConstraint(Sketcher.Constraint("Equal", 85, 86))
sketch1.addConstraint(Sketcher.Constraint("Equal", 86, 87))
sketch1.addConstraint(Sketcher.Constraint("Symmetric", 1, 3, 43, 3, -1, 1))
sketch1.addConstraint(Sketcher.Constraint("Symmetric", 22, 3, 64, 3, -1, 1))
sketch1.addConstraint(Sketcher.Constraint("Symmetric", 85, 3, 86, 3, -1, 1))
sketch1.addConstraint(Sketcher.Constraint("Symmetric", 84, 3, 87, 3, -1, 1))
sketch1.addConstraint(Sketcher.Constraint("Symmetric", 3, 2, 45, 2, -1, 1))
sketch1.addConstraint(Sketcher.Constraint("Symmetric", 5, 2, 47, 2, -1, 1))
sketch1.addConstraint(Sketcher.Constraint("Symmetric", 6, 2, 48, 2, -1, 1))
sketch1.addConstraint(Sketcher.Constraint("Symmetric", 8, 2, 50, 2, -1, 1))
sketch1.addConstraint(Sketcher.Constraint("Symmetric", 9, 2, 51, 2, -1, 1))
sketch1.addConstraint(Sketcher.Constraint("Symmetric", 11, 2, 53, 2, -1, 1))
sketch1.addConstraint(Sketcher.Constraint("Symmetric", 12, 2, 54, 2, -1, 1))
sketch1.addConstraint(Sketcher.Constraint("Symmetric", 14, 2, 56, 2, -1, 1))
sketch1.addConstraint(Sketcher.Constraint("Symmetric", 15, 2, 57, 2, -1, 1))
sketch1.addConstraint(Sketcher.Constraint("Symmetric", 17, 2, 59, 2, -1, 1))
sketch1.addConstraint(Sketcher.Constraint("Symmetric", 19, 2, 61, 2, -1, 1))
sketch1.addConstraint(Sketcher.Constraint("Symmetric", 24, 2, 66, 2, -1, 1))
sketch1.addConstraint(Sketcher.Constraint("Symmetric", 26, 2, 68, 2, -1, 1))
sketch1.addConstraint(Sketcher.Constraint("Symmetric", 27, 2, 69, 2, -1, 1))
sketch1.addConstraint(Sketcher.Constraint("Symmetric", 29, 2, 71, 2, -1, 1))
sketch1.addConstraint(Sketcher.Constraint("Symmetric", 30, 2, 72, 2, -1, 1))
sketch1.addConstraint(Sketcher.Constraint("Symmetric", 32, 2, 74, 2, -1, 1))
sketch1.addConstraint(Sketcher.Constraint("Symmetric", 33, 2, 75, 2, -1, 1))
sketch1.addConstraint(Sketcher.Constraint("Symmetric", 35, 2, 77, 2, -1, 1))
sketch1.addConstraint(Sketcher.Constraint("Symmetric", 36, 2, 78, 2, -1, 1))
sketch1.addConstraint(Sketcher.Constraint("Symmetric", 38, 2, 80, 2, -1, 1))
sketch1.addConstraint(Sketcher.Constraint("Symmetric", 40, 2, 82, 2, -1, 1))
sketch1.addConstraint(Sketcher.Constraint("Symmetric", 1, 3, 22, 3, -2))
sketch1.addConstraint(Sketcher.Constraint("Symmetric", 84, 3, 85, 3, -2))
sketch1.addConstraint(Sketcher.Constraint("Symmetric", 10, 2, 12, 2, -2))
sketch1.addConstraint(Sketcher.Constraint("Symmetric", 8, 2, 14, 2, -2))
sketch1.addConstraint(Sketcher.Constraint("Symmetric", 7, 2, 15, 2, -2))
sketch1.addConstraint(Sketcher.Constraint("Symmetric", 5, 2, 17, 2, -2))
sketch1.addConstraint(Sketcher.Constraint("Symmetric", 3, 2, 19, 2, -2))
sketch1.addConstraint(Sketcher.Constraint("Symmetric", 40, 2, 66, 2, -2))
sketch1.addConstraint(Sketcher.Constraint("Symmetric", 38, 2, 68, 2, -2))
sketch1.addConstraint(Sketcher.Constraint("Symmetric", 37, 2, 69, 2, -2))
sketch1.addConstraint(Sketcher.Constraint("Symmetric", 35, 2, 71, 2, -2))
sketch1.addConstraint(Sketcher.Constraint("Symmetric", 34, 2, 72, 2, -2))
sketch1.addConstraint(Sketcher.Constraint("PointOnObject", 11, 2, -2))
sketch1.addConstraint(Sketcher.Constraint("PointOnObject", 32, 2, -1))
sketch1.addConstraint(Sketcher.Constraint("Parallel", 8, 11))
sketch1.addConstraint(Sketcher.Constraint("Parallel", 9, 12))
sketch1.addConstraint(Sketcher.Constraint("Parallel", 11, 14))
sketch1.addConstraint(Sketcher.Constraint("Perpendicular", 6, 17))
sketch1.addConstraint(Sketcher.Constraint("Parallel", 17, 27))
sketch1.addConstraint(Sketcher.Constraint("Perpendicular", 14, 29))
sketch1.addConstraint(Sketcher.Constraint("Perpendicular", 15, 30))
sketch1.addConstraint(Sketcher.Constraint("Parallel", 29, 32))
sketch1.addConstraint(Sketcher.Constraint("Parallel", 30, 33))
sketch1.addConstraint(Sketcher.Constraint("Parallel", 33, 36))
sketch1.addConstraint(Sketcher.Constraint("Perpendicular", 27, 38))
sketch1.addConstraint(Sketcher.Constraint("Perpendicular", 35, 50))
sketch1.addConstraint(Sketcher.Constraint("Parallel", 50, 53))
sketch1.addConstraint(Sketcher.Constraint("Parallel", 53, 56))
sketch1.addConstraint(Sketcher.Constraint("Perpendicular", 48, 59))
sketch1.addConstraint(Sketcher.Constraint("Perpendicular", 56, 71))
sketch1.addConstraint(Sketcher.Constraint("Parallel", 71, 74))
sketch1.addConstraint(Sketcher.Constraint("Parallel", 74, 77))
sketch1.addConstraint(Sketcher.Constraint("Perpendicular", 69, 80))
sketch1.addConstraint(Sketcher.Constraint("Horizontal", 7, 2, 9, 2))
sketch1.addConstraint(Sketcher.Constraint("Vertical", 28, 2, 30, 2))
sketch1.addConstraint(Sketcher.Constraint("Equal", 63, 0))
sketch1.addConstraint(Sketcher.Constraint("Equal", 83, 3))
sketch1.addConstraint(Sketcher.Constraint("Equal", 81, 5))
sketch1.addConstraint(Sketcher.Constraint("Equal", 61, 25))
sketch1.addConstraint(Sketcher.Constraint("Equal", 58, 28))
sketch1.addConstraint(Sketcher.Constraint("Equal", 55, 31))
sketch1.addConstraint(Sketcher.Constraint("Equal", 17, 27))
sketch1.addConstraint(Sketcher.Constraint("Equal", 15, 29))
sketch1.addConstraint(Sketcher.Constraint("Equal", 12, 32))
sketch1.addConstraint(Sketcher.Constraint("Diameter", 84, 7.0))
sketch1.addConstraint(Sketcher.Constraint("Radius", 1, 3.0))
sketch1.addConstraint(Sketcher.Constraint("DistanceX", 2, 1, 2, 2, 22.0))
sketch1.addConstraint(Sketcher.Constraint("DistanceX", 4, 2, 4, 1, 5.0))
sketch1.addConstraint(Sketcher.Constraint("DistanceX", 24, 2, 24, 1, 6.0))
sketch1.addConstraint(Sketcher.Constraint("Angle", 8, Q("30.0007 deg")))
sketch1.addConstraint(Sketcher.Constraint("DistanceX", 1, 3, -1, 1, 27.0))
sketch1.addConstraint(Sketcher.Constraint("DistanceX", 84, 3, -1, 1, 20.0))
sketch1.addConstraint(Sketcher.Constraint("DistanceY", 84, 3, -1, 1, 20.0))
sketch1.addConstraint(Sketcher.Constraint("DistanceY", 6, 2, -1, 1, 17.0))
sketch1.addConstraint(Sketcher.Constraint("DistanceX", 8, 2, -1, 1, 3.0))
sketch1.addConstraint(Sketcher.Constraint("Distance", 8, 0.4))
sketch1.addConstraint(Sketcher.Constraint("Distance", 11, 1.4))
sketch1.addConstraint(Sketcher.Constraint("DistanceX", 7, 1, 7, 2, 4.037))
pad1 = body.newObject("PartDesign::Pad", "Pad")
pad1.Profile = sketch1
pad1.Length = 2590.8
pad1.Reversed = True

# Sketch on XY plane
sketch2 = body.newObject("Sketcher::SketchObject", "Sketch001")
sketch2.AttachmentSupport = (doc.getObject("XY_Plane"), [""])
sketch2.MapMode = "FlatFace"
sketch2.AttachmentOffset = App.Placement(Vector(0, 0, -2590.8), App.Rotation())
sketch2.addGeometry(Part.Circle(Vector(0, 0, 0), Vector(0, 0, 1), 5.25), False)
sketch2.addConstraint(Sketcher.Constraint("Coincident", 0, 3, -1, 1))
sketch2.addConstraint(Sketcher.Constraint("Diameter", 0, 10.5))
doc.recompute()
hole = body.newObject("PartDesign::Hole", "Hole")
hole.Profile = sketch2
hole.ThreadType = "None"
hole.Diameter = 10.5
hole.DepthType = "Dimension"
hole.Depth = 1000
hole.DrillPoint = "Flat"
hole.Reversed = True

doc.recompute()
